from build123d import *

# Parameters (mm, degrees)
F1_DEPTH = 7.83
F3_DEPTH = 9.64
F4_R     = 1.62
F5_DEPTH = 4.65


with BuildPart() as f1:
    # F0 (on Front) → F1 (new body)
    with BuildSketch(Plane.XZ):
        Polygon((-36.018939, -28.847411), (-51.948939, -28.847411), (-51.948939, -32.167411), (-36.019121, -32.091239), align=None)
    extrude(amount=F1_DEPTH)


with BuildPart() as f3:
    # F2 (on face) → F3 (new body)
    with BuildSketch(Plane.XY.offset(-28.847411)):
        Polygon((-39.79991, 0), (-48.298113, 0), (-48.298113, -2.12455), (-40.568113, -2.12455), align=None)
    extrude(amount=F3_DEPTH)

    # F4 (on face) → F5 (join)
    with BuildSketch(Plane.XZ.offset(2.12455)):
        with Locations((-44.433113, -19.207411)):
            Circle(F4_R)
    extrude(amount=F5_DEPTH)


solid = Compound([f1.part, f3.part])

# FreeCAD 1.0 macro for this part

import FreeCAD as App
import Part
import Sketcher
from FreeCAD import Vector

doc = App.newDocument("Part")
body = doc.addObject("PartDesign::Body", "Body")

sketch1 = doc.addObject("Sketcher::SketchObject", "Sketch")
body.addObject(sketch1)
sketch1.AttachmentSupport = (doc.XZ_Plane, [""])
sketch1.MapMode = "FlatFace"
sketch1.addGeometry(Part.LineSegment(Vector(-36, -28.8, 0), Vector(-51.9, -28.8, 0)), False)
sketch1.addGeometry(Part.LineSegment(Vector(-51.9, -28.8, 0), Vector(-51.9, -32.2, 0)), False)
sketch1.addGeometry(Part.LineSegment(Vector(-51.9, -32.2, 0), Vector(-36, -32.1, 0)), False)
sketch1.addGeometry(Part.LineSegment(Vector(-36, -32.1, 0), Vector(-36, -28.8, 0)), False)
sketch1.addConstraint(Sketcher.Constraint("Coincident", 0, 2, 1, 1))
sketch1.addConstraint(Sketcher.Constraint("Coincident", 1, 2, 2, 1))
sketch1.addConstraint(Sketcher.Constraint("Coincident", 2, 2, 3, 1))
sketch1.addConstraint(Sketcher.Constraint("Coincident", 3, 2, 0, 1))
sketch1.addConstraint(Sketcher.Constraint("Horizontal", 0))
sketch1.addConstraint(Sketcher.Constraint("Vertical", 1))
sketch1.addConstraint(Sketcher.Constraint("DistanceX", 0, 2, 0, 1, 15.93))
sketch1.addConstraint(Sketcher.Constraint("DistanceY", 1, 2, 1, 1, 3.32))
sketch1.addConstraint(Sketcher.Constraint("Distance", 2, 15.93))
sketch1.addConstraint(Sketcher.Constraint("Distance", 3, 3.243828))
sketch1.addConstraint(Sketcher.Constraint("DistanceX", 0, 2, -1, 1, 51.948939))
sketch1.addConstraint(Sketcher.Constraint("DistanceY", 0, 2, -1, 1, 28.847411))
pad1 = doc.addObject("PartDesign::Pad", "Pad")
body.addObject(pad1)
pad1.Profile = sketch1
pad1.Length = 7.83
body2 = doc.addObject("PartDesign::Body", "Body001")

sketch2 = doc.addObject("Sketcher::SketchObject", "Sketch001")
body2.addObject(sketch2)
sketch2.AttachmentSupport = (doc.getObject("XY_Plane001"), [""])
sketch2.MapMode = "FlatFace"
sketch2.AttachmentOffset = App.Placement(Vector(0, 0, -28.847411), App.Rotation())
sketch2.addGeometry(Part.LineSegment(Vector(-39.8, 0, 0), Vector(-48.3, 0, 0)), False)
sketch2.addGeometry(Part.LineSegment(Vector(-48.3, 0, 0), Vector(-48.3, -2.1, 0)), False)
sketch2.addGeometry(Part.LineSegment(Vector(-48.3, -2.1, 0), Vector(-40.6, -2.1, 0)), False)
sketch2.addGeometry(Part.LineSegment(Vector(-40.6, -2.1, 0), Vector(-39.8, 0, 0)), False)
sketch2.addConstraint(Sketcher.Constraint("Coincident", 0, 2, 1, 1))
sketch2.addConstraint(Sketcher.Constraint("Coincident", 1, 2, 2, 1))
sketch2.addConstraint(Sketcher.Constraint("Coincident", 2, 2, 3, 1))
sketch2.addConstraint(Sketcher.Constraint("Coincident", 3, 2, 0, 1))
sketch2.addConstraint(Sketcher.Constraint("Horizontal", 0))
sketch2.addConstraint(Sketcher.Constraint("Vertical", 1))
sketch2.addConstraint(Sketcher.Constraint("Horizontal", 2))
sketch2.addConstraint(Sketcher.Constraint("PointOnObject", 0, 2, -1))
sketch2.addConstraint(Sketcher.Constraint("DistanceX", 2, 1, 2, 2, 7.73))
sketch2.addConstraint(Sketcher.Constraint("DistanceY", 1, 2, 1, 1, 2.12455))
sketch2.addConstraint(Sketcher.Constraint("Distance", 3, 2.25917))
sketch2.addConstraint(Sketcher.Constraint("DistanceX", 3, 2, -1, 1, 39.79991))
pad2 = doc.addObject("PartDesign::Pad", "Pad001")
body2.addObject(pad2)
pad2.Profile = sketch2
pad2.Length = 9.64

sketch3 = doc.addObject("Sketcher::SketchObject", "Sketch002")
body2.addObject(sketch3)
sketch3.AttachmentSupport = (doc.getObject("XZ_Plane001"), [""])
sketch3.MapMode = "FlatFace"
sketch3.AttachmentOffset = App.Placement(Vector(0, 0, 2.12455), App.Rotation())
sketch3.addGeometry(Part.Circle(Vector(-44.4, -19.2, 0), Vector(0, 0, 1), 1.6), False)
sketch3.addConstraint(Sketcher.Constraint("Diameter", 0, 3.24))
sketch3.addConstraint(Sketcher.Constraint("DistanceY", 0, 3, -1, 1, 19.207411))
sketch3.addConstraint(Sketcher.Constraint("DistanceX", 0, 3, -1, 1, 44.433113))
pad3 = doc.addObject("PartDesign::Pad", "Pad002")
body2.addObject(pad3)
pad3.Profile = sketch3
pad3.Length = 4.65

doc.recompute()
